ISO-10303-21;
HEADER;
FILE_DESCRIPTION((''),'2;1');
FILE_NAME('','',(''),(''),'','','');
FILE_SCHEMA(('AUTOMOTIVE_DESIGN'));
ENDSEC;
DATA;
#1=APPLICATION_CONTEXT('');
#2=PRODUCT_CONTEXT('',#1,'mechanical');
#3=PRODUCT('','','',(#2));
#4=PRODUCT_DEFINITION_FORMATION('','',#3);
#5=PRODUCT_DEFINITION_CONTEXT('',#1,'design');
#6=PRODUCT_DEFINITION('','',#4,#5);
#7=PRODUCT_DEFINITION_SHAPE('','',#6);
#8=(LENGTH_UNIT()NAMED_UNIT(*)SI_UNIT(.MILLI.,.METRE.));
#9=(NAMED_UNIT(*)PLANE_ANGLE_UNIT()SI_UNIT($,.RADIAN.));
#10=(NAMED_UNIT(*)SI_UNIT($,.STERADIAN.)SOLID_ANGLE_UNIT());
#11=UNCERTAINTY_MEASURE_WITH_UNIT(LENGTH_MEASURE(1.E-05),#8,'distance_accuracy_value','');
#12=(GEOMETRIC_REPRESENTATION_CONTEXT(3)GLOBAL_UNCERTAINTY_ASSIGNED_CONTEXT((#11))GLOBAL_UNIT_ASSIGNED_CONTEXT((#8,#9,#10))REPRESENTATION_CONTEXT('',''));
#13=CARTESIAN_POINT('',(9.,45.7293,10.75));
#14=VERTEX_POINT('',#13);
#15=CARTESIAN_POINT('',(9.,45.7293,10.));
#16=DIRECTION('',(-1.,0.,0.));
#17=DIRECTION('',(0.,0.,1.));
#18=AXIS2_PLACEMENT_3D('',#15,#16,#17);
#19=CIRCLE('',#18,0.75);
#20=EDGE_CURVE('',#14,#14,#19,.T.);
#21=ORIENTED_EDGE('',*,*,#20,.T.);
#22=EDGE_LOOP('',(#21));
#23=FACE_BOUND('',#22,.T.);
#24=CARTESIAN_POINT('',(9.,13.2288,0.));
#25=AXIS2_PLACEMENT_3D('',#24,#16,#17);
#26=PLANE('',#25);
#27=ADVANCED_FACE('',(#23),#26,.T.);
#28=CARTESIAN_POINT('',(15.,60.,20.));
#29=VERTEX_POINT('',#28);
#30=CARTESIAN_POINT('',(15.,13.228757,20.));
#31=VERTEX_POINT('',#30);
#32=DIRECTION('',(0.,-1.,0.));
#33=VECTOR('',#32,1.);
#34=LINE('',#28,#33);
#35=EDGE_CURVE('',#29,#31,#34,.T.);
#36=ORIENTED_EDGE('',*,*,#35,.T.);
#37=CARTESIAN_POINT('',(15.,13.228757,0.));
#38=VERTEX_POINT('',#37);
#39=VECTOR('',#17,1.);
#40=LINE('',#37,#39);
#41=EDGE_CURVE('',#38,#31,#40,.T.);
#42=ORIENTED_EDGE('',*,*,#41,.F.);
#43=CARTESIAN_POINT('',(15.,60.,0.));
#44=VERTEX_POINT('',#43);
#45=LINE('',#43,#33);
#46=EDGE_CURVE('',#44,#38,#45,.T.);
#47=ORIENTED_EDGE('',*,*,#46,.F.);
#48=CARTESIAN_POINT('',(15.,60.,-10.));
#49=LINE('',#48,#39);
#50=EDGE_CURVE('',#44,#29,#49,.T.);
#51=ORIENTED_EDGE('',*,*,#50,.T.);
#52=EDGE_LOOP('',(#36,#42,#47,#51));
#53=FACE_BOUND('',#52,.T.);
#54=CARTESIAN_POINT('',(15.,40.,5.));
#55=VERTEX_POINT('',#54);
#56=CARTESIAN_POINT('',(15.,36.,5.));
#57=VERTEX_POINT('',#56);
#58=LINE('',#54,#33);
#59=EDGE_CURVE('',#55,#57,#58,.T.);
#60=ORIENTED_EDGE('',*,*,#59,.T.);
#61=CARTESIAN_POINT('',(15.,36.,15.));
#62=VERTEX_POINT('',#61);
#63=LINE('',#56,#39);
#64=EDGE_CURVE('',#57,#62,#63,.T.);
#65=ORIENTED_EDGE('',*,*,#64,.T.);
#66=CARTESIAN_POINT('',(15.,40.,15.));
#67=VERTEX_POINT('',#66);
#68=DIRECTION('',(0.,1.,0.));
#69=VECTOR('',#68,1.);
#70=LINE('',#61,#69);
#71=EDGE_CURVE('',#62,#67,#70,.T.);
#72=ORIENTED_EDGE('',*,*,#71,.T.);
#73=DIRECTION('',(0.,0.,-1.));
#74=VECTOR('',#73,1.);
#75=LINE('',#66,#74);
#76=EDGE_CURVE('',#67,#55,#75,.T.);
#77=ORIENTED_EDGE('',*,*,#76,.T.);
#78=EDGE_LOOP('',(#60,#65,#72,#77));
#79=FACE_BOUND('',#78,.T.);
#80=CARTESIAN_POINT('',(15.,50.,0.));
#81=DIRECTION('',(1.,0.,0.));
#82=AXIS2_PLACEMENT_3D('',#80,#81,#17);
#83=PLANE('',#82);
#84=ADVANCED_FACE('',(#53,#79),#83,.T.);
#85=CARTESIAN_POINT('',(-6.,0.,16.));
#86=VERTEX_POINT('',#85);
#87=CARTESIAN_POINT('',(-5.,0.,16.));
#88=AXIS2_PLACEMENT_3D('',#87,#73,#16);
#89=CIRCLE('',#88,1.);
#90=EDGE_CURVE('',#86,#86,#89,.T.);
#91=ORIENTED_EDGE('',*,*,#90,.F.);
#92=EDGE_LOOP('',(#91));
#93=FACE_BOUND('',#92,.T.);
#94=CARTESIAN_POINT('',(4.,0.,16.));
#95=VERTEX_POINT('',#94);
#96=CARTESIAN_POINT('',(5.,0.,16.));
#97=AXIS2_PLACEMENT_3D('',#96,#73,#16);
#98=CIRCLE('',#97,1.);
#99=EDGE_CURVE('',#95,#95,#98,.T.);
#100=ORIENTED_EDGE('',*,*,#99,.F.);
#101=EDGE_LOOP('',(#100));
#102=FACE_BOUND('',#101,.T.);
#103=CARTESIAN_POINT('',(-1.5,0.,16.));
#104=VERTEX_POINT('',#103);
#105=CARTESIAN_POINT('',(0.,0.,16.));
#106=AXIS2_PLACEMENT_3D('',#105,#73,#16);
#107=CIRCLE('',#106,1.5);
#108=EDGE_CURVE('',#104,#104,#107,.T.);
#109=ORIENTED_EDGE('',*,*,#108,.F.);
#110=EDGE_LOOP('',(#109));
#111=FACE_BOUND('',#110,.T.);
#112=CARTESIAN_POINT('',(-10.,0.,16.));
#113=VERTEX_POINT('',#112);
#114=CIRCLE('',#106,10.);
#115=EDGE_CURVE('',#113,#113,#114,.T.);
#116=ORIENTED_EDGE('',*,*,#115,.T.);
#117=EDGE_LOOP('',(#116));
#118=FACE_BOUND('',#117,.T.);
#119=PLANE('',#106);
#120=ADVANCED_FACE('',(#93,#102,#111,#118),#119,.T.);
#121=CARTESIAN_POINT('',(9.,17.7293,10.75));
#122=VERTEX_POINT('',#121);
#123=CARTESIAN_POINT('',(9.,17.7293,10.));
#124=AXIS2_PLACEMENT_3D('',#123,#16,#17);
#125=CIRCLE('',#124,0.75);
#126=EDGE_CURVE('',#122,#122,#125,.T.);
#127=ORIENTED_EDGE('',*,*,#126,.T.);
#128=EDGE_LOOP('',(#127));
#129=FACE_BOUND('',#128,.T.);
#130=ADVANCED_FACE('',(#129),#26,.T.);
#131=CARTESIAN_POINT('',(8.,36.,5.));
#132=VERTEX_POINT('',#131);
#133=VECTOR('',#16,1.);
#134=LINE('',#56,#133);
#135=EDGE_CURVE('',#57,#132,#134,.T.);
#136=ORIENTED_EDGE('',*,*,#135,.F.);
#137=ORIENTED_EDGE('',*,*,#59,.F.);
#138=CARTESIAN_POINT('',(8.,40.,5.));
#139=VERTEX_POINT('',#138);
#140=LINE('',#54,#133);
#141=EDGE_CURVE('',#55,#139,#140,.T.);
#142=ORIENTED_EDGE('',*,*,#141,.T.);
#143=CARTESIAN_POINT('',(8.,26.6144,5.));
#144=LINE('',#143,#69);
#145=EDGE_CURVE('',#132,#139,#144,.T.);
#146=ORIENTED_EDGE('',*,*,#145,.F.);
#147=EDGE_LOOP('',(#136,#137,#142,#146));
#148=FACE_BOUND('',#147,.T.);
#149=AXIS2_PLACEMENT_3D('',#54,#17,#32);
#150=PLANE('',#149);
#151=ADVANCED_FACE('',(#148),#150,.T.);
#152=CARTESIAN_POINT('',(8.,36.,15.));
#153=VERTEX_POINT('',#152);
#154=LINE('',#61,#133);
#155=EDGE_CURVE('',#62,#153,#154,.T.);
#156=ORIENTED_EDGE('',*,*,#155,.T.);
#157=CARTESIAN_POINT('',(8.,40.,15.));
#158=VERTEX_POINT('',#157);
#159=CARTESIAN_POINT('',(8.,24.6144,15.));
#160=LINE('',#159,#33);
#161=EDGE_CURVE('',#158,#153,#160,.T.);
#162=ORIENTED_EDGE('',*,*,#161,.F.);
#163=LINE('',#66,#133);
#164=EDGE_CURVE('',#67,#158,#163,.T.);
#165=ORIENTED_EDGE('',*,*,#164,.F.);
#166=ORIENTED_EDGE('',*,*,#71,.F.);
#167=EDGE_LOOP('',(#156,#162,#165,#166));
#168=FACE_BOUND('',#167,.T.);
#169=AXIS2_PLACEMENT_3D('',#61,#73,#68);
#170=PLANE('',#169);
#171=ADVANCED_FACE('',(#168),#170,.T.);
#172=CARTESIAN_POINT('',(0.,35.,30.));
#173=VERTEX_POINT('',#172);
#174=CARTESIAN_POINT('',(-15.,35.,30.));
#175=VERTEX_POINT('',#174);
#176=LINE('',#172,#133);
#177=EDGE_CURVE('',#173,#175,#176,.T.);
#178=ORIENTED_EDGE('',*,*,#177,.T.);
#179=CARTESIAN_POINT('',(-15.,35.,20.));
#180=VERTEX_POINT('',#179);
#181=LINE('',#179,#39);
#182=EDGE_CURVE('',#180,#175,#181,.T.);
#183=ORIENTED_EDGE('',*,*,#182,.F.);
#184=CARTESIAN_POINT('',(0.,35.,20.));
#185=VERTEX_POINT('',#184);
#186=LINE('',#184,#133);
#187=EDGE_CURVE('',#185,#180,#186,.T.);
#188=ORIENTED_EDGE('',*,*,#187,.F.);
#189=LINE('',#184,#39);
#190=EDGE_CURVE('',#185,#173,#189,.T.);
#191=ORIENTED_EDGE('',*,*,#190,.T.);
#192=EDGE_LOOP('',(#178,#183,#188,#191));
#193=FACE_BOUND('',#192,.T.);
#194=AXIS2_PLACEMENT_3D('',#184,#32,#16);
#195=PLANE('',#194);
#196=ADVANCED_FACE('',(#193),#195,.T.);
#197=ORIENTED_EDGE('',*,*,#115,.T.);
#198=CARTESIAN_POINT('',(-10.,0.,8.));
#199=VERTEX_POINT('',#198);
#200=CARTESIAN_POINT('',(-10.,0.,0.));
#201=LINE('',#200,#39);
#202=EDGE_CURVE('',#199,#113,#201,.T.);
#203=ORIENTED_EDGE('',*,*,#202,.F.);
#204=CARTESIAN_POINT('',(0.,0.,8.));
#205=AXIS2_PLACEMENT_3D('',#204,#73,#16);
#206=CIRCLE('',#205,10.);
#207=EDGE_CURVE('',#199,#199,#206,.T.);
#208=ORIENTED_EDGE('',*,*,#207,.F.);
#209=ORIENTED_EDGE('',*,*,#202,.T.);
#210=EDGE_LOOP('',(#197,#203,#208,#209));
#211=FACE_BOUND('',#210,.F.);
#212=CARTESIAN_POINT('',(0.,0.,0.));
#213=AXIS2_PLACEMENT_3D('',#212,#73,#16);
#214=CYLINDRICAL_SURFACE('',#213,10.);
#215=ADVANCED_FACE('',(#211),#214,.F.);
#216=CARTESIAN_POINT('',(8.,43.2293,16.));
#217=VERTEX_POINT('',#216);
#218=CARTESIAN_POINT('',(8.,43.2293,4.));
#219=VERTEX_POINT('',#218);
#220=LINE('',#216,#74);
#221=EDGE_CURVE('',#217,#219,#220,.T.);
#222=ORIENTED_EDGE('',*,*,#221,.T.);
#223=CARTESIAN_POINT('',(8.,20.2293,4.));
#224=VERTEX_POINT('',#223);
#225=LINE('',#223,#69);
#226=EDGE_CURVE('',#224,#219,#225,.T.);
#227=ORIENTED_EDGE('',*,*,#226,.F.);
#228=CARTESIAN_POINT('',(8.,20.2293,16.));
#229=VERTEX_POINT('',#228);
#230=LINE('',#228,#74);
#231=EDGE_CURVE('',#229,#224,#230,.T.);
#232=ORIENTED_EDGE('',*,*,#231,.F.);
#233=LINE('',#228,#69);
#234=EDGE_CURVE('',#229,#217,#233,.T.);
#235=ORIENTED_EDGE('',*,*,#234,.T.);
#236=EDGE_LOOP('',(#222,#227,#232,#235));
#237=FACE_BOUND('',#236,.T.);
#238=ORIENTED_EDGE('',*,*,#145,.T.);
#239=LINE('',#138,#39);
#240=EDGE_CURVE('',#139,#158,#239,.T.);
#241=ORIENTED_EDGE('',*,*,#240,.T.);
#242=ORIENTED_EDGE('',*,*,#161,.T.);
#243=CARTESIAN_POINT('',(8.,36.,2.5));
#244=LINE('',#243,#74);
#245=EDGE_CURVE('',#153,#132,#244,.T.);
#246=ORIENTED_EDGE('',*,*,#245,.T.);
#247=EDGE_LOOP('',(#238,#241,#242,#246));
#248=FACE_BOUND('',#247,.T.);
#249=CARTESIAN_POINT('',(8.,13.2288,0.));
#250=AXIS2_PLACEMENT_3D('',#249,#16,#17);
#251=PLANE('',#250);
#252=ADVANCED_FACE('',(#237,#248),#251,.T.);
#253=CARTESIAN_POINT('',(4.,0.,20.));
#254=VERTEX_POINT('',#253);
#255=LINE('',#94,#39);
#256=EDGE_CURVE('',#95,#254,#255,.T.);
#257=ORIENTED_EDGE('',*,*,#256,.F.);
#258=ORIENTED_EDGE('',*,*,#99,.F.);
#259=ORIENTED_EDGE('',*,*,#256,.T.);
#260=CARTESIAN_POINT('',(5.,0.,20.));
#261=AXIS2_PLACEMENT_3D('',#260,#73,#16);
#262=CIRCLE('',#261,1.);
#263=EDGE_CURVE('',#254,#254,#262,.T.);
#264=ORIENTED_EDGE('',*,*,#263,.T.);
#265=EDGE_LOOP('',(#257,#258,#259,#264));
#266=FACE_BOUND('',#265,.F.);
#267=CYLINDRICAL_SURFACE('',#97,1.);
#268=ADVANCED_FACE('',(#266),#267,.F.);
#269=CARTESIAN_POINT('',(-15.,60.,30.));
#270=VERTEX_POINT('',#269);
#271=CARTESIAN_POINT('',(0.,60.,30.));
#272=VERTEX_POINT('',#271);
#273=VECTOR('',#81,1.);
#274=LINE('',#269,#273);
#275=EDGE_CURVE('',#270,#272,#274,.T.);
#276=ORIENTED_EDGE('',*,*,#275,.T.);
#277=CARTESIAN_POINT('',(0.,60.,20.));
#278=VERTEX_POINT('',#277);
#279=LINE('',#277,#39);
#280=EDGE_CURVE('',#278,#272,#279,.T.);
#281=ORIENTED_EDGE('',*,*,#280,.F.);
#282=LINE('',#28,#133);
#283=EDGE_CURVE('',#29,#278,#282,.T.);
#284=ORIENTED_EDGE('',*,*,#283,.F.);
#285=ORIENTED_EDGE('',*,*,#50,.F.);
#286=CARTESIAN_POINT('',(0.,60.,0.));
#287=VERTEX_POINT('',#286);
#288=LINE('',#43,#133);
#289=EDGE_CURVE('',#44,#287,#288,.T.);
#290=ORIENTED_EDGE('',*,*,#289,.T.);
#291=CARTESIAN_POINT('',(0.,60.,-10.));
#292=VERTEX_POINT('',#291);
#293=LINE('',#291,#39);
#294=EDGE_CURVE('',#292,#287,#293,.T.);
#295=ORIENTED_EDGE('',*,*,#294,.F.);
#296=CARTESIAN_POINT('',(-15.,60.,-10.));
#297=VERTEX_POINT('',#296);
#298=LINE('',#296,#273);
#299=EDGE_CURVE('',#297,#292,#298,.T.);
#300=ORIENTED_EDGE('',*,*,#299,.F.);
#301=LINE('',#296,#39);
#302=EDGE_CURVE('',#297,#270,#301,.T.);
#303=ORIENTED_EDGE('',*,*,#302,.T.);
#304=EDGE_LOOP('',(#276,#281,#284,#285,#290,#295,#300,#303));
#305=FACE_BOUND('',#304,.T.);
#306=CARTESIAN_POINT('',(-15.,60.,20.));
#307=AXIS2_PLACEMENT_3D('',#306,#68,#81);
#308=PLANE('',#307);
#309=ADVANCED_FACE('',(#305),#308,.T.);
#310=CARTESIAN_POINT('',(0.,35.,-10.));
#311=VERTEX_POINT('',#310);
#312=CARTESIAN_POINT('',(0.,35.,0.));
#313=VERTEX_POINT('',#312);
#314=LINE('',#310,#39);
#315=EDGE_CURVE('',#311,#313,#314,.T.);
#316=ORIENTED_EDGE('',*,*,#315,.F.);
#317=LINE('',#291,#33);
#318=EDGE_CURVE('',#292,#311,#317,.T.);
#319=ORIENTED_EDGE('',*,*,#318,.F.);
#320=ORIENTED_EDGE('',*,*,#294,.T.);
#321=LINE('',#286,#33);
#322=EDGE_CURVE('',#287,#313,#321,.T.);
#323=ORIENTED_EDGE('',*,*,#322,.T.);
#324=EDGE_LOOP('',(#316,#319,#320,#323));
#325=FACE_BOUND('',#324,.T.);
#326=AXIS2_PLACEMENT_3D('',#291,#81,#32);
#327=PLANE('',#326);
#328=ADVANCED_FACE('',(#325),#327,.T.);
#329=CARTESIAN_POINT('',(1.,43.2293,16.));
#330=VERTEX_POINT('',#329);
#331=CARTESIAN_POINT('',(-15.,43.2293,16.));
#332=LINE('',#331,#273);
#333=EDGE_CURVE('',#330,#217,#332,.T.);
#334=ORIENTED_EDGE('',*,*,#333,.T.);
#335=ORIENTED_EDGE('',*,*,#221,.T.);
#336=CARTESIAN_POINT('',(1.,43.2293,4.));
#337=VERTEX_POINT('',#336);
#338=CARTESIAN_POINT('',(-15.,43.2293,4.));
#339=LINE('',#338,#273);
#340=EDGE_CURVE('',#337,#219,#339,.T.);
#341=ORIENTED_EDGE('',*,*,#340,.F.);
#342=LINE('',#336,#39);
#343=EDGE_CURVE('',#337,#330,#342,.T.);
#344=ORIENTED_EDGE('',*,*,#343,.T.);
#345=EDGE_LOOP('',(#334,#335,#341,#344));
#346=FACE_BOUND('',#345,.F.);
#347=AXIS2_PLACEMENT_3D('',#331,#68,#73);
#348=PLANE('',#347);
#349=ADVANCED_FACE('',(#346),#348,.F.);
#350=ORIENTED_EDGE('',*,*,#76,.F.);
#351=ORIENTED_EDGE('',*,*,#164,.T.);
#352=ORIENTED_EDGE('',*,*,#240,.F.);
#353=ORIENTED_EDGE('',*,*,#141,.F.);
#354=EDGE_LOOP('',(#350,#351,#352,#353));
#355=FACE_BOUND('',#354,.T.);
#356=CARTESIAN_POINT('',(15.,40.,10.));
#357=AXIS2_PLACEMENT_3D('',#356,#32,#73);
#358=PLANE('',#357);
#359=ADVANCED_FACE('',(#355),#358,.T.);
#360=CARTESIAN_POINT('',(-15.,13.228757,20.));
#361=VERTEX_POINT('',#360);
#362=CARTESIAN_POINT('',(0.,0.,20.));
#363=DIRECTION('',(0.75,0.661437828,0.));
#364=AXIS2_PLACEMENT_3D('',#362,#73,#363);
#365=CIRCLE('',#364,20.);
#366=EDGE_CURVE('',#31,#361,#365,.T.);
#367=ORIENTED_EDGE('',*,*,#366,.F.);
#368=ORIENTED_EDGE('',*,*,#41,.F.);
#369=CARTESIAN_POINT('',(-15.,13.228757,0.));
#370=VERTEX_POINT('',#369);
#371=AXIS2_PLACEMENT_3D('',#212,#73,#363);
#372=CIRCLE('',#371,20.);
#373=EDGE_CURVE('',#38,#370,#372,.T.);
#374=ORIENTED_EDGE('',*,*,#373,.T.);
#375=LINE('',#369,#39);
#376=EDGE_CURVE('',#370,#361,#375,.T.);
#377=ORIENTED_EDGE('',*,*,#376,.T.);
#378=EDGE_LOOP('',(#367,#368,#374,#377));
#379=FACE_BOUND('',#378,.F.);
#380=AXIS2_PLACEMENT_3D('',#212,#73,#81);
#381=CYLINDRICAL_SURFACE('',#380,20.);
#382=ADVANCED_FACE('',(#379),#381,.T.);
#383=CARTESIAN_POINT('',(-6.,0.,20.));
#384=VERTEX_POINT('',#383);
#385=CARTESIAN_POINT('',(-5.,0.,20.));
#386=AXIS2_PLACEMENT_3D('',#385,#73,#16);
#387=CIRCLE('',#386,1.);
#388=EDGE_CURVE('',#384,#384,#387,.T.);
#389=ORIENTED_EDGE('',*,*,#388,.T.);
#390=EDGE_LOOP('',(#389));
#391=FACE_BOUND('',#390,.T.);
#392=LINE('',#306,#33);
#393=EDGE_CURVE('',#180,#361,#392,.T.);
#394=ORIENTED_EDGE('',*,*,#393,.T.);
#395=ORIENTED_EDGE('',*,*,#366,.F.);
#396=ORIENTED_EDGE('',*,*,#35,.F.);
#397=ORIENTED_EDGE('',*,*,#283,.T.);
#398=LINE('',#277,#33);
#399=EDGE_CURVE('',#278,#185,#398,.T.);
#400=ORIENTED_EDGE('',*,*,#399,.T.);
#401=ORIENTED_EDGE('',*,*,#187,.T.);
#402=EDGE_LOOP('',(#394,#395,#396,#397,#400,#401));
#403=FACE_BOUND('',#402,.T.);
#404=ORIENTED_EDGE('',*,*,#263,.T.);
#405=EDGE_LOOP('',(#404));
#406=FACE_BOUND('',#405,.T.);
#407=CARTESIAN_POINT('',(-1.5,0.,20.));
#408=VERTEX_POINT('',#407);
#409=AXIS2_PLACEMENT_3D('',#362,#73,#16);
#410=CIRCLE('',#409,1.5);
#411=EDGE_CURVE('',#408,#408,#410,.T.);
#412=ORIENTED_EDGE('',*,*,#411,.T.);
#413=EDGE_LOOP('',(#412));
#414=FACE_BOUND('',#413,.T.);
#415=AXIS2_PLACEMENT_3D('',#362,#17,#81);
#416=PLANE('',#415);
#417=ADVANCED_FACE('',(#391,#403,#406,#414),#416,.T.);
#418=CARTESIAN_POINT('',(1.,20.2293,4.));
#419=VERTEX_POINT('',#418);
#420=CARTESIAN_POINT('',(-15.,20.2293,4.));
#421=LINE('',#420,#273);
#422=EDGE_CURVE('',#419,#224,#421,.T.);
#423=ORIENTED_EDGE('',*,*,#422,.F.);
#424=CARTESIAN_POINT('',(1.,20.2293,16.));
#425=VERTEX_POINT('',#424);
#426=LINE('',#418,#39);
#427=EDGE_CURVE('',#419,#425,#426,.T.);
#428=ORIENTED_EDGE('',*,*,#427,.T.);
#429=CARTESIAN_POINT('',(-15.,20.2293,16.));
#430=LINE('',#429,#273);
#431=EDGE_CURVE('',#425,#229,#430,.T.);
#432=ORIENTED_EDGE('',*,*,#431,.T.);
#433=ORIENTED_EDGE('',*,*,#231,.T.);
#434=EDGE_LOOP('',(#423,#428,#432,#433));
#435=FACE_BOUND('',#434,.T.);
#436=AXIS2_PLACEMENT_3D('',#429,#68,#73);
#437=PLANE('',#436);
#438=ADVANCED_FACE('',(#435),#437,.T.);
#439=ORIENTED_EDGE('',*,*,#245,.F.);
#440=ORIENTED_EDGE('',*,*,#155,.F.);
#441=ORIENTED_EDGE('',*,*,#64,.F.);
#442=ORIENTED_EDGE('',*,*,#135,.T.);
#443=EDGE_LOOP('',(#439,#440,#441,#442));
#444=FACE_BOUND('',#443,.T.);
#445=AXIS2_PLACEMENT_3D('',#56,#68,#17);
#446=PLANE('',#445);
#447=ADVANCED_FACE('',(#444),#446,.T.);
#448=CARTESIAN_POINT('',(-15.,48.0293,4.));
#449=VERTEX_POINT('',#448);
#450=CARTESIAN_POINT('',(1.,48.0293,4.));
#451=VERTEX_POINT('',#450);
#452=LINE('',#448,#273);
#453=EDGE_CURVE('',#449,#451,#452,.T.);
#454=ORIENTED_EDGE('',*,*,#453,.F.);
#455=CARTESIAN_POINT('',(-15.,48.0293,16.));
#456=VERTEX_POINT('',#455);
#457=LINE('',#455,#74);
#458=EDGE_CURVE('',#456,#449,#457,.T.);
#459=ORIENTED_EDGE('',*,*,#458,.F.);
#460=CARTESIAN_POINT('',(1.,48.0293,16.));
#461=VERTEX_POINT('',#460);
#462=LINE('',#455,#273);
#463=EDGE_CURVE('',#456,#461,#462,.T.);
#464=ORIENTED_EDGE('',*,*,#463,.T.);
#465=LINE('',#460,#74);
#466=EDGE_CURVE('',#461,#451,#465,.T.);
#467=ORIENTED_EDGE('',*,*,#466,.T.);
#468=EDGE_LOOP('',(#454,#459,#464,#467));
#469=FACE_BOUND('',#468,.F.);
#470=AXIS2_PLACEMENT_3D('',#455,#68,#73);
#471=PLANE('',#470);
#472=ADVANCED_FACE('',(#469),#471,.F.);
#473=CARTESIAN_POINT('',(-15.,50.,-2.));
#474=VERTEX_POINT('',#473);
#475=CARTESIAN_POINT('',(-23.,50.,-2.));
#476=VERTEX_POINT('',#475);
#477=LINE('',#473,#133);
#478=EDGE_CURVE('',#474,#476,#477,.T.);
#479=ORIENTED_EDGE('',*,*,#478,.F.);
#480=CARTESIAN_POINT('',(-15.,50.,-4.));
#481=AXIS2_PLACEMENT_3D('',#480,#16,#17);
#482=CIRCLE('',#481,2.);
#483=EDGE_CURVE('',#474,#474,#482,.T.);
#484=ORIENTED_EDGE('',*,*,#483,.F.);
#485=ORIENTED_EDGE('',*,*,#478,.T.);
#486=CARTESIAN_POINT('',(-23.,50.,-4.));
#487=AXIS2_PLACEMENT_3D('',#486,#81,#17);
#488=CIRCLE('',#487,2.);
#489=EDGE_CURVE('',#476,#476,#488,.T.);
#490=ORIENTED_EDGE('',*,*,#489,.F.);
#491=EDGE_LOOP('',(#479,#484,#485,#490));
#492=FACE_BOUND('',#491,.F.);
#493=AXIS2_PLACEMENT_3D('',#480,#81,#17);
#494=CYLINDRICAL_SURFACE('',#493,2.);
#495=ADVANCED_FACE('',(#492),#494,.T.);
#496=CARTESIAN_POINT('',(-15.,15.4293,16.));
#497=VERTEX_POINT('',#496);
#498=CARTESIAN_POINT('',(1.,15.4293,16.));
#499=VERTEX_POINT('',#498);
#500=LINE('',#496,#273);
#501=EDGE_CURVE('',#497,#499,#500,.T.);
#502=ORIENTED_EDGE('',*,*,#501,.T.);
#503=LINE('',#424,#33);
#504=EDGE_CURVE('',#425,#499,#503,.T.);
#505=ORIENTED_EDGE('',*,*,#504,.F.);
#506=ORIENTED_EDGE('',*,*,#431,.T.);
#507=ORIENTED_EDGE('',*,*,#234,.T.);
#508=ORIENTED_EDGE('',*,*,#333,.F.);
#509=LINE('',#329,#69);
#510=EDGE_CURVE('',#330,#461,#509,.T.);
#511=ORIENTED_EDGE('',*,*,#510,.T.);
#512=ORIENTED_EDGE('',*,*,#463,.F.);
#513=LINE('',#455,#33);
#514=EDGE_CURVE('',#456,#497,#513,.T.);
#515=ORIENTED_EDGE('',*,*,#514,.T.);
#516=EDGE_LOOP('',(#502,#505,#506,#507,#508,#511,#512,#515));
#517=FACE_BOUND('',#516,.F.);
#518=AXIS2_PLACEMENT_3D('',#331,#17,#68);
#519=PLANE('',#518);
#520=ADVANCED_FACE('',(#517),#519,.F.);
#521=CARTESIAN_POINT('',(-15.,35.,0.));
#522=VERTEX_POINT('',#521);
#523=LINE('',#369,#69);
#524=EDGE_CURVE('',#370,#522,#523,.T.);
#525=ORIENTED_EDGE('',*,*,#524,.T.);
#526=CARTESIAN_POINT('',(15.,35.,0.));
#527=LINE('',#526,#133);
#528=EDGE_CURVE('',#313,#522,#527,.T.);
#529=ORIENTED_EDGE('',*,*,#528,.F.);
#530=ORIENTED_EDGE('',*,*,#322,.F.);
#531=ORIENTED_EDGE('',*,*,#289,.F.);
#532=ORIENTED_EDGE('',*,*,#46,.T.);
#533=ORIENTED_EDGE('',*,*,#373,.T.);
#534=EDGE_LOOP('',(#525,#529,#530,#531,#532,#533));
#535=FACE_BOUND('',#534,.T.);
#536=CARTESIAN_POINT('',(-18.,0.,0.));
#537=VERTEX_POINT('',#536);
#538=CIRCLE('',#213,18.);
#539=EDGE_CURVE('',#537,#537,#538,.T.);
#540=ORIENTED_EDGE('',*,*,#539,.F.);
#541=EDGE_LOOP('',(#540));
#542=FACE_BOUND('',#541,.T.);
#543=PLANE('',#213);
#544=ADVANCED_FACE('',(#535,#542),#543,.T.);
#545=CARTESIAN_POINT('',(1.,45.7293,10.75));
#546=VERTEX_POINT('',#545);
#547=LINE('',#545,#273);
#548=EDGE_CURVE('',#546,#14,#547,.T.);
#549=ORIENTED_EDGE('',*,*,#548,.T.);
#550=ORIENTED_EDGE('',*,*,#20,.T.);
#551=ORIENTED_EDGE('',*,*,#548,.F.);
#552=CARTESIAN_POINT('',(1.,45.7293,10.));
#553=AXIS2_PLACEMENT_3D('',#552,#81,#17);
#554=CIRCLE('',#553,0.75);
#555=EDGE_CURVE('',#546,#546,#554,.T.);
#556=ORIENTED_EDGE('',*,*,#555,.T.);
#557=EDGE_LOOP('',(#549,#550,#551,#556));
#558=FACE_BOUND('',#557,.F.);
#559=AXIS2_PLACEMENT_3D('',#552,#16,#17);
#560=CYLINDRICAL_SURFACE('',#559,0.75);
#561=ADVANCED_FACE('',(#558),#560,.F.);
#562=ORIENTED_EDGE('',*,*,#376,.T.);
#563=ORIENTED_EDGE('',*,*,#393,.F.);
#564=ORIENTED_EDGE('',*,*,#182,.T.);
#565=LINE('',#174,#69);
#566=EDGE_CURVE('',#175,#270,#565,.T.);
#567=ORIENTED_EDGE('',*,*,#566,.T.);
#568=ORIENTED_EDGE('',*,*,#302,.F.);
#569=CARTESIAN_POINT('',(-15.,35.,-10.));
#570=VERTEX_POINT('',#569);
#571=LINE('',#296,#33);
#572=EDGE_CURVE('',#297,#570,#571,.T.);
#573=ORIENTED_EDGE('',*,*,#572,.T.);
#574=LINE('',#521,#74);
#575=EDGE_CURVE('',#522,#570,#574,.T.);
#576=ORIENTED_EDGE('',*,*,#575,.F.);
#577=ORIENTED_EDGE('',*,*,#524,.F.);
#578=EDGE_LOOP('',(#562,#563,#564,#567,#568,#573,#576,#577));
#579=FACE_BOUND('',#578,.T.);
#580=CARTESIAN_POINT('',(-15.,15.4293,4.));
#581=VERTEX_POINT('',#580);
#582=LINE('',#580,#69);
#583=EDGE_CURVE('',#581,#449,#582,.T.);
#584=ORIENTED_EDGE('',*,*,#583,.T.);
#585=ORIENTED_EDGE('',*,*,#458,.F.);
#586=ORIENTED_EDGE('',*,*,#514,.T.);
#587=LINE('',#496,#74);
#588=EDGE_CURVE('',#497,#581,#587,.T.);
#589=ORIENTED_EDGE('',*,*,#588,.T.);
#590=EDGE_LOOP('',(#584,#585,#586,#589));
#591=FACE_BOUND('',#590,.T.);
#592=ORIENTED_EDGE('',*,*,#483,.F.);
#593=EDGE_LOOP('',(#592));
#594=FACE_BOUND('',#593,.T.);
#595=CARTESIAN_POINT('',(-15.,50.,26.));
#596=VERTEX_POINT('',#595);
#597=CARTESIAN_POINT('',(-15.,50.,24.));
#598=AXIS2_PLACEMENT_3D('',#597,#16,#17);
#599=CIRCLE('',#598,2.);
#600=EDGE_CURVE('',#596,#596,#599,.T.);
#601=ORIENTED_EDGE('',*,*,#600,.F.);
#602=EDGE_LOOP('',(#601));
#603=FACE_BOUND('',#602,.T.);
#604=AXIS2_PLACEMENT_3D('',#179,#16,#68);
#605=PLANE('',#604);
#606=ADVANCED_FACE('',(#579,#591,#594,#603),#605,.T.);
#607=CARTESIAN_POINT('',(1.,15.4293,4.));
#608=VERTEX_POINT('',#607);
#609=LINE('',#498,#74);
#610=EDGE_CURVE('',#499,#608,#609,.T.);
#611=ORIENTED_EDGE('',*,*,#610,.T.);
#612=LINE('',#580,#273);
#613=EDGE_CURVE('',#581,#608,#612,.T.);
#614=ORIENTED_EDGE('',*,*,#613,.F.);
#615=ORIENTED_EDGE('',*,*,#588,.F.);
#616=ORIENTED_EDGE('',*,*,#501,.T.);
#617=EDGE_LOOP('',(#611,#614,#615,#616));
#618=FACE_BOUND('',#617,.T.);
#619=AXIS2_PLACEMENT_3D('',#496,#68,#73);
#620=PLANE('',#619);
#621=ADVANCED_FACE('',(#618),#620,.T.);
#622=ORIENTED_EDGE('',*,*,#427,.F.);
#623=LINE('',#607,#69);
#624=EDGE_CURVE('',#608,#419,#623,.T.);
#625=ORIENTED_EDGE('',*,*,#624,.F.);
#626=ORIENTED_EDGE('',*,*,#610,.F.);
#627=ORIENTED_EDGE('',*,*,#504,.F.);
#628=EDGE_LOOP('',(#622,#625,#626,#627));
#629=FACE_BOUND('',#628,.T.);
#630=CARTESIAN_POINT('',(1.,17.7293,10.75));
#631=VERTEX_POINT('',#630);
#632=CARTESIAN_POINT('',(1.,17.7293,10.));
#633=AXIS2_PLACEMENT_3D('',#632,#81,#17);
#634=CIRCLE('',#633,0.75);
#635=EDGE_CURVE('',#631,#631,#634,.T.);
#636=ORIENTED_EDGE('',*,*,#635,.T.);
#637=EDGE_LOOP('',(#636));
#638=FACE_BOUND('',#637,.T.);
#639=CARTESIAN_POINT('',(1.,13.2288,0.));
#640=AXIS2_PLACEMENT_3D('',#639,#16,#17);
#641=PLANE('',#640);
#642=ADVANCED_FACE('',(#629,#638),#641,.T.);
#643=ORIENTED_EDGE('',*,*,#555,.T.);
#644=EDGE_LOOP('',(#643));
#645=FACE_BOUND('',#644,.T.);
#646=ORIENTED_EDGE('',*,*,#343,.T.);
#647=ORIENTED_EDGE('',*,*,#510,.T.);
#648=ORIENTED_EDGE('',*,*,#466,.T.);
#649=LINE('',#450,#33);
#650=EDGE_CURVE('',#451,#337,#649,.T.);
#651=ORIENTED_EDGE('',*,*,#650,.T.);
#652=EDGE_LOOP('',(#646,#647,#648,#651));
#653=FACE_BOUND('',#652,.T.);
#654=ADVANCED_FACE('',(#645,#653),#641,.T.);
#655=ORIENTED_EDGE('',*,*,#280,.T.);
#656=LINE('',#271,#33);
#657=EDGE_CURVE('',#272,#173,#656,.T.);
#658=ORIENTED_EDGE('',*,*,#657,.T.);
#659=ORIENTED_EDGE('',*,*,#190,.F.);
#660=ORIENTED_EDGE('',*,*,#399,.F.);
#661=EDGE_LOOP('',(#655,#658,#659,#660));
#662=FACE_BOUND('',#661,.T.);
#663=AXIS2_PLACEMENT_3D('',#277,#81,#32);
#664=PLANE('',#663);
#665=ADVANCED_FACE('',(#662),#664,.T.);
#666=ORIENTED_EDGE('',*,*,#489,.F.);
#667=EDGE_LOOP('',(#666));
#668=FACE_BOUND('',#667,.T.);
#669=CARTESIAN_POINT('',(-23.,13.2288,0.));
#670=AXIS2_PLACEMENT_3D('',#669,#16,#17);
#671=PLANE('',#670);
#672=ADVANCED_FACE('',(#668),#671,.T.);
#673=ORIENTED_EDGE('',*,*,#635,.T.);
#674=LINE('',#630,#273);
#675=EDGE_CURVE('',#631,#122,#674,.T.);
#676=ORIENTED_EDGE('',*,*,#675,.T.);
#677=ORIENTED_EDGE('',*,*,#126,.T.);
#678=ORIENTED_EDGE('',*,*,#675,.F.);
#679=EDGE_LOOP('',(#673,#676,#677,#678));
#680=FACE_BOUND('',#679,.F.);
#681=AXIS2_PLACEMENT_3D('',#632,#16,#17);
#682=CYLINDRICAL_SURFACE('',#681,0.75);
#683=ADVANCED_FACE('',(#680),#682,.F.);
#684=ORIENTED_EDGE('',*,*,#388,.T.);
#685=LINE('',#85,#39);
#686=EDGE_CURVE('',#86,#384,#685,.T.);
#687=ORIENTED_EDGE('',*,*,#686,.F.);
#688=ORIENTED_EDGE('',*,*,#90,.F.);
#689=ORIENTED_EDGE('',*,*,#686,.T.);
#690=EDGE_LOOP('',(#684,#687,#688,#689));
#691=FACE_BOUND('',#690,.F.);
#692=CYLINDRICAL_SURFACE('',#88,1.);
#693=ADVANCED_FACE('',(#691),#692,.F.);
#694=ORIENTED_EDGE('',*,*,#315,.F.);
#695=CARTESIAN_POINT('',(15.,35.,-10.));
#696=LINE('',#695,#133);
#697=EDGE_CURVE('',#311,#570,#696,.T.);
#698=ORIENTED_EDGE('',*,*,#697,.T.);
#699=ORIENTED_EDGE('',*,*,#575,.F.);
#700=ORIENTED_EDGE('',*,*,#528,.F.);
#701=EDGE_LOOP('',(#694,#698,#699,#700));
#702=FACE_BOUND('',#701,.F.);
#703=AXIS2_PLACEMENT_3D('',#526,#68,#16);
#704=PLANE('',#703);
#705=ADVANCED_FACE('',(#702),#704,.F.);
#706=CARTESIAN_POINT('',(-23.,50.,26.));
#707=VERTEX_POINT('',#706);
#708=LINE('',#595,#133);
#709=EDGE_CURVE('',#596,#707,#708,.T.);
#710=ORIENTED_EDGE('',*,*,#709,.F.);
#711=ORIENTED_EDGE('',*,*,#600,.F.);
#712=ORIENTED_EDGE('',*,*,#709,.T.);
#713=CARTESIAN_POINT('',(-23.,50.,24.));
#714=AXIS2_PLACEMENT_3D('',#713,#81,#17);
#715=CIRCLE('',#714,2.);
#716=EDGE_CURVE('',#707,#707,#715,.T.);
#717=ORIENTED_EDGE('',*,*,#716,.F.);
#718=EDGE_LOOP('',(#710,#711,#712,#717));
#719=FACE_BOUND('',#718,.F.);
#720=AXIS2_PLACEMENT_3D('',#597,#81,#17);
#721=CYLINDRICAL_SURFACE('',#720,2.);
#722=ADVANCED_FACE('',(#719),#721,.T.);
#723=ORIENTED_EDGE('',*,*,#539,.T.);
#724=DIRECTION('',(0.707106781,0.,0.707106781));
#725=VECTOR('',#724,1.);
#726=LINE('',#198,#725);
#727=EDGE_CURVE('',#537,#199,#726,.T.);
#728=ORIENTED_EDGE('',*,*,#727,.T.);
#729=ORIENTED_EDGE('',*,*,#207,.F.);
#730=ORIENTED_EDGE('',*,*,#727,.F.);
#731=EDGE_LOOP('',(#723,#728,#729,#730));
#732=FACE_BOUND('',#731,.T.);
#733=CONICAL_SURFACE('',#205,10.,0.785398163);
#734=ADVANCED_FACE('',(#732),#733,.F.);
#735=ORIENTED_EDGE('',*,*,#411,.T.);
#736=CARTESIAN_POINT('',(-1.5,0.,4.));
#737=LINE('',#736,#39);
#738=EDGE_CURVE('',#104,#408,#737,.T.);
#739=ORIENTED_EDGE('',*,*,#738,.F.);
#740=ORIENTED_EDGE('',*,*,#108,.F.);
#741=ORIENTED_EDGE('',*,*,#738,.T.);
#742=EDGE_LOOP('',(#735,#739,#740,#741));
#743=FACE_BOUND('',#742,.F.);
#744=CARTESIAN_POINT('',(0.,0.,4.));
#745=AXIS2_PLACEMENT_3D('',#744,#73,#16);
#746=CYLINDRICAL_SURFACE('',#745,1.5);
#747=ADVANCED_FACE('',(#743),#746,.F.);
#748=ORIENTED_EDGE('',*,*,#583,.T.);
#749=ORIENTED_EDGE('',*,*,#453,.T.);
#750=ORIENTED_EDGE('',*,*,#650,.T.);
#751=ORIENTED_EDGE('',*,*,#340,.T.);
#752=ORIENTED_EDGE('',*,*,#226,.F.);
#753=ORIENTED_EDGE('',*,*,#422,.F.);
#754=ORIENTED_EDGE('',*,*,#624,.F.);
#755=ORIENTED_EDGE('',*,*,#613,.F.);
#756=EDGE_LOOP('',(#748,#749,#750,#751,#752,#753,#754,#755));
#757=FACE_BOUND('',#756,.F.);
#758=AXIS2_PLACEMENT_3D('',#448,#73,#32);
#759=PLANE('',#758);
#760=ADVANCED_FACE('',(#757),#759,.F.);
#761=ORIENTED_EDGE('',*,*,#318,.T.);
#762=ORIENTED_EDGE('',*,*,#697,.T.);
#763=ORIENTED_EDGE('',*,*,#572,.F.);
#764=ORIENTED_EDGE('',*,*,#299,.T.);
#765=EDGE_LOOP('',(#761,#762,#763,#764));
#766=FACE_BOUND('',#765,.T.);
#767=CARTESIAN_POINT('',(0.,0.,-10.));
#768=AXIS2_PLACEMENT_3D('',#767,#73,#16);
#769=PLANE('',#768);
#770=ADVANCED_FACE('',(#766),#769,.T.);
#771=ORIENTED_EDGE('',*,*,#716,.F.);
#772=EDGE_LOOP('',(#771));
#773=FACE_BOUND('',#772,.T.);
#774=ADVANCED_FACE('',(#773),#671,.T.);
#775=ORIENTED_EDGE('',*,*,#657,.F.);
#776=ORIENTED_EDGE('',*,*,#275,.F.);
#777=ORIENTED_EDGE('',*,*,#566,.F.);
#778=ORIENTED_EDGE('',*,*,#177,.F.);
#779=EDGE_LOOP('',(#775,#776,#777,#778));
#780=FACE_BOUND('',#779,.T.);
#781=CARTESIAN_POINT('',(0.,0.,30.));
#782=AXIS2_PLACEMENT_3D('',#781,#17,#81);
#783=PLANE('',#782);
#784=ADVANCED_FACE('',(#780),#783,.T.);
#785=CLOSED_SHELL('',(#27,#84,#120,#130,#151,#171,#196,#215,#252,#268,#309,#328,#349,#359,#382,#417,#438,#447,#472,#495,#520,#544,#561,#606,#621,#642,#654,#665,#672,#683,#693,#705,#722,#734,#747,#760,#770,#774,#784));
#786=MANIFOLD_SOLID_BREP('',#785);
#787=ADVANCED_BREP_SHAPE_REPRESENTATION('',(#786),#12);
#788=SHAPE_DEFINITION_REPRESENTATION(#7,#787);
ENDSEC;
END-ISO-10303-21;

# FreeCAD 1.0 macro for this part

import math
import FreeCAD as App
import Part
import Sketcher
from FreeCAD import Vector


def edges_at(feature, points):
    """Names of the edges that pass closest to the given points."""
    edges = feature.Shape.Edges
    near = lambda p: min(range(len(edges)), key=lambda i: edges[i].distToShape(Part.Vertex(*p))[0])
    return sorted({f"Edge{near(p) + 1}" for p in points})

doc = App.newDocument("Part")
body = doc.addObject("PartDesign::Body", "Body")

# Sketch on XY plane
sketch1 = body.newObject("Sketcher::SketchObject", "Sketch")
sketch1.AttachmentSupport = (doc.getObject("XY_Plane"), [""])
sketch1.MapMode = "FlatFace"
sketch1.addGeometry([
    Part.ArcOfCircle(Part.Circle(Vector(0, 0, 0), Vector(0, 0, 1), 20), math.radians(138.590378), math.radians(401.409622)),
    Part.LineSegment(Vector(15, 13.228757, 0), Vector(15, 50, 0)),
    Part.LineSegment(Vector(15, 50, 0), Vector(-15, 50, 0)),
    Part.LineSegment(Vector(-15, 50, 0), Vector(-15, 13.228757, 0)),
], False)
sketch1.addConstraint([
    Sketcher.Constraint("Coincident", 0, 2, 1, 1),
    Sketcher.Constraint("Coincident", 1, 2, 2, 1),
    Sketcher.Constraint("Coincident", 2, 2, 3, 1),
    Sketcher.Constraint("Coincident", 3, 2, 0, 1),
    Sketcher.Constraint("Vertical", 1),
    Sketcher.Constraint("Horizontal", 2),
    Sketcher.Constraint("Vertical", 3),
    Sketcher.Constraint("Coincident", 0, 3, -1, 1),
    Sketcher.Constraint("Horizontal", 0, 2, 3, 2),
    Sketcher.Constraint("Radius", 0, 20.0),
    Sketcher.Constraint("DistanceX", 2, 2, 2, 1, 30.0),
    Sketcher.Constraint("DistanceY", -1, 1, 1, 2, 50.0),
])
pad1 = body.newObject("PartDesign::Pad", "Pad")
pad1.Profile = sketch1
pad1.Length = 20

# Sketch on XY plane
sketch2 = body.newObject("Sketcher::SketchObject", "Sketch001")
sketch2.AttachmentSupport = (doc.getObject("XY_Plane"), [""])
sketch2.MapMode = "FlatFace"
sketch2.AttachmentOffset = App.Placement(Vector(0, 0, 20), App.Rotation())
sketch2.addGeometry(Part.Circle(Vector(0, 0, 0), Vector(0, 0, 1), 10), False)
sketch2.addConstraint([
    Sketcher.Constraint("Coincident", 0, 3, -1, 1),
    Sketcher.Constraint("Diameter", 0, 20.0),
])
pocket1 = body.newObject("PartDesign::Pocket", "Pocket")
pocket1.Profile = sketch2
pocket1.Length = 15

# Sketch on YZ plane
sketch3 = body.newObject("Sketcher::SketchObject", "Sketch002")
sketch3.AttachmentSupport = (doc.getObject("YZ_Plane"), [""])
sketch3.MapMode = "FlatFace"
sketch3.AttachmentOffset = App.Placement(Vector(0, 0, -15), App.Rotation())
sketch3.addGeometry([
    Part.LineSegment(Vector(43.2293, 16, 0), Vector(43.2293, 4, 0)),
    Part.LineSegment(Vector(43.2293, 4, 0), Vector(20.2293, 4, 0)),
    Part.LineSegment(Vector(20.2293, 4, 0), Vector(20.2293, 16, 0)),
    Part.LineSegment(Vector(20.2293, 16, 0), Vector(43.2293, 16, 0)),
], False)
sketch3.addConstraint([
    Sketcher.Constraint("Coincident", 0, 2, 1, 1),
    Sketcher.Constraint("Coincident", 1, 2, 2, 1),
    Sketcher.Constraint("Coincident", 2, 2, 3, 1),
    Sketcher.Constraint("Coincident", 3, 2, 0, 1),
    Sketcher.Constraint("Vertical", 0),
    Sketcher.Constraint("Horizontal", 1),
    Sketcher.Constraint("Vertical", 2),
    Sketcher.Constraint("Horizontal", 3),
    Sketcher.Constraint("DistanceX", 1, 2, 1, 1, 23.0),
    Sketcher.Constraint("DistanceY", 0, 2, 0, 1, 12.0),
    Sketcher.Constraint("DistanceY", -1, 1, 0, 2, 4.0),
    Sketcher.Constraint("DistanceX", -1, 1, 0, 2, 43.2293),
])
pocket2 = body.newObject("PartDesign::Pocket", "Pocket001")
pocket2.Profile = sketch3
pocket2.Length = 23
pocket2.Reversed = True

# Sketch on YZ plane
sketch4 = body.newObject("Sketcher::SketchObject", "Sketch003")
sketch4.AttachmentSupport = (doc.getObject("YZ_Plane"), [""])
sketch4.MapMode = "FlatFace"
sketch4.AttachmentOffset = App.Placement(Vector(0, 0, -15), App.Rotation())
sketch4.addGeometry([
    Part.LineSegment(Vector(48.0293, 4, 0), Vector(43.2293, 4, 0)),  # 0
    Part.LineSegment(Vector(43.2293, 4, 0), Vector(43.2293, 16, 0)),  # 1
    Part.LineSegment(Vector(43.2293, 16, 0), Vector(48.0293, 16, 0)),  # 2
    Part.LineSegment(Vector(48.0293, 16, 0), Vector(48.0293, 4, 0)),  # 3
    Part.LineSegment(Vector(20.2293, 16, 0), Vector(20.2293, 4, 0)),  # 4
    Part.LineSegment(Vector(20.2293, 4, 0), Vector(15.4293, 4, 0)),  # 5
    Part.LineSegment(Vector(15.4293, 4, 0), Vector(15.4293, 16, 0)),  # 6
    Part.LineSegment(Vector(15.4293, 16, 0), Vector(20.2293, 16, 0)),  # 7
], False)
sketch4.addConstraint([
    Sketcher.Constraint("Coincident", 0, 2, 1, 1),
    Sketcher.Constraint("Coincident", 1, 2, 2, 1),
    Sketcher.Constraint("Coincident", 2, 2, 3, 1),
    Sketcher.Constraint("Coincident", 3, 2, 0, 1),
    Sketcher.Constraint("Coincident", 4, 2, 5, 1),
    Sketcher.Constraint("Coincident", 5, 2, 6, 1),
    Sketcher.Constraint("Coincident", 6, 2, 7, 1),
    Sketcher.Constraint("Coincident", 7, 2, 4, 1),
    Sketcher.Constraint("Horizontal", 0),
    Sketcher.Constraint("Vertical", 1),
    Sketcher.Constraint("Horizontal", 2),
    Sketcher.Constraint("Vertical", 3),
    Sketcher.Constraint("Vertical", 4),
    Sketcher.Constraint("Horizontal", 5),
    Sketcher.Constraint("Vertical", 6),
    Sketcher.Constraint("Horizontal", 7),
    Sketcher.Constraint("Horizontal", 3, 2, 4, 2),
    Sketcher.Constraint("Horizontal", 2, 2, 6, 2),
    Sketcher.Constraint("Equal", 2, 5),
    Sketcher.Constraint("DistanceY", 1, 1, 1, 2, 12.0),
    Sketcher.Constraint("DistanceX", 0, 2, 0, 1, 4.8),
    Sketcher.Constraint("DistanceY", -1, 1, 0, 2, 4.0),
    Sketcher.Constraint("DistanceX", 4, 2, 0, 2, 23.0),
    Sketcher.Constraint("DistanceX", -1, 1, 0, 2, 43.2293),
])
pocket3 = body.newObject("PartDesign::Pocket", "Pocket002")
pocket3.Profile = sketch4
pocket3.Length = 16
pocket3.Reversed = True

# Sketch on YZ plane
sketch5 = body.newObject("Sketcher::SketchObject", "Sketch004")
sketch5.AttachmentSupport = (doc.getObject("YZ_Plane"), [""])
sketch5.MapMode = "FlatFace"
sketch5.AttachmentOffset = App.Placement(Vector(0, 0, 1), App.Rotation())
sketch5.addGeometry([
    Part.Circle(Vector(45.7293, 10, 0), Vector(0, 0, 1), 0.75),
    Part.Circle(Vector(17.7293, 10, 0), Vector(0, 0, 1), 0.75),
], False)
sketch5.addConstraint([
    Sketcher.Constraint("Equal", 0, 1),
    Sketcher.Constraint("Horizontal", 0, 3, 1, 3),
    Sketcher.Constraint("Diameter", 0, 1.5),
    Sketcher.Constraint("DistanceY", -1, 1, 0, 3, 10.0),
    Sketcher.Constraint("DistanceX", 1, 3, 0, 3, 28.0),
    Sketcher.Constraint("DistanceX", -1, 1, 0, 3, 45.7293),
])
pocket4 = body.newObject("PartDesign::Pocket", "Pocket003")
pocket4.Profile = sketch5
pocket4.Length = 8
pocket4.Reversed = True

# Sketch on YZ plane
sketch6 = body.newObject("Sketcher::SketchObject", "Sketch005")
sketch6.AttachmentSupport = (doc.getObject("YZ_Plane"), [""])
sketch6.MapMode = "FlatFace"
sketch6.AttachmentOffset = App.Placement(Vector(0, 0, 15), App.Rotation())
sketch6.addGeometry([
    Part.LineSegment(Vector(36, 5, 0), Vector(40, 5, 0)),
    Part.LineSegment(Vector(40, 5, 0), Vector(40, 15, 0)),
    Part.LineSegment(Vector(40, 15, 0), Vector(36, 15, 0)),
    Part.LineSegment(Vector(36, 15, 0), Vector(36, 5, 0)),
], False)
sketch6.addConstraint([
    Sketcher.Constraint("Coincident", 0, 2, 1, 1),
    Sketcher.Constraint("Coincident", 1, 2, 2, 1),
    Sketcher.Constraint("Coincident", 2, 2, 3, 1),
    Sketcher.Constraint("Coincident", 3, 2, 0, 1),
    Sketcher.Constraint("Horizontal", 0),
    Sketcher.Constraint("Vertical", 1),
    Sketcher.Constraint("Horizontal", 2),
    Sketcher.Constraint("Vertical", 3),
    Sketcher.Constraint("DistanceY", 1, 1, 1, 2, 10.0),
    Sketcher.Constraint("DistanceY", -1, 1, 0, 2, 5.0),
    Sketcher.Constraint("DistanceX", 0, 1, 0, 2, 4.0),
    Sketcher.Constraint("DistanceX", -1, 1, 0, 2, 40.0),
])
pocket5 = body.newObject("PartDesign::Pocket", "Pocket004")
pocket5.Profile = sketch6
pocket5.Length = 15.8125

# Sketch on XY plane
sketch7 = body.newObject("Sketcher::SketchObject", "Sketch006")
sketch7.AttachmentSupport = (doc.getObject("XY_Plane"), [""])
sketch7.MapMode = "FlatFace"
sketch7.AttachmentOffset = App.Placement(Vector(0, 0, 5), App.Rotation())
sketch7.addGeometry([
    Part.Circle(Vector(0, 0, 0), Vector(0, 0, 1), 1.5),
    Part.Circle(Vector(7, 0, 0), Vector(0, 0, 1), 1.5),
    Part.Circle(Vector(-7, 0, 0), Vector(0, 0, 1), 1.5),
], False)
sketch7.addConstraint([
    Sketcher.Constraint("Coincident", 0, 3, -1, 1),
    Sketcher.Constraint("Equal", 0, 1),
    Sketcher.Constraint("Equal", 1, 2),
    Sketcher.Constraint("Symmetric", 1, 3, 2, 3, -1, 1),
    Sketcher.Constraint("PointOnObject", 1, 3, -1),
    Sketcher.Constraint("Diameter", 0, 3.0),
    Sketcher.Constraint("DistanceX", -1, 1, 1, 3, 7.0),
])
pocket6 = body.newObject("PartDesign::Pocket", "Pocket005")
pocket6.Profile = sketch7
pocket6.Length = 8

# Sketch on XZ plane
sketch8 = body.newObject("Sketcher::SketchObject", "Sketch007")
sketch8.AttachmentSupport = (doc.getObject("XZ_Plane"), [""])
sketch8.MapMode = "FlatFace"
sketch8.AttachmentOffset = App.Placement(Vector(0, 0, -50), App.Rotation())
sketch8.addGeometry([
    Part.LineSegment(Vector(14.4792, 0, 0), Vector(-15, 0, 0)),
    Part.LineSegment(Vector(-15, 0, 0), Vector(-15, 20, 0)),
    Part.LineSegment(Vector(-15, 20, 0), Vector(14.4792, 20, 0)),
    Part.LineSegment(Vector(14.4792, 20, 0), Vector(14.4792, 0, 0)),
], False)
sketch8.addConstraint([
    Sketcher.Constraint("Coincident", 0, 2, 1, 1),
    Sketcher.Constraint("Coincident", 1, 2, 2, 1),
    Sketcher.Constraint("Coincident", 2, 2, 3, 1),
    Sketcher.Constraint("Coincident", 3, 2, 0, 1),
    Sketcher.Constraint("Horizontal", 0),
    Sketcher.Constraint("Vertical", 1),
    Sketcher.Constraint("Horizontal", 2),
    Sketcher.Constraint("Vertical", 3),
    Sketcher.Constraint("PointOnObject", 0, 2, -1),
    Sketcher.Constraint("DistanceY", 1, 1, 1, 2, 20.0),
    Sketcher.Constraint("DistanceX", 0, 2, -1, 1, 15.0),
    Sketcher.Constraint("DistanceX", 0, 2, 0, 1, 29.4792),
])
pad2 = body.newObject("PartDesign::Pad", "Pad001")
pad2.Profile = sketch8
pad2.Length = 10
pad2.Reversed = True

# Sketch on YZ plane
sketch9 = body.newObject("Sketcher::SketchObject", "Sketch008")
sketch9.AttachmentSupport = (doc.getObject("YZ_Plane"), [""])
sketch9.MapMode = "FlatFace"
sketch9.AttachmentOffset = App.Placement(Vector(0, 0, 14.4792), App.Rotation())
sketch9.addGeometry([
    Part.LineSegment(Vector(50, 20, 0), Vector(50, 0, 0)),
    Part.LineSegment(Vector(50, 0, 0), Vector(60, 0, 0)),
    Part.LineSegment(Vector(60, 0, 0), Vector(60, 20, 0)),
    Part.LineSegment(Vector(60, 20, 0), Vector(50, 20, 0)),
], False)
sketch9.addConstraint([
    Sketcher.Constraint("Coincident", 0, 2, 1, 1),
    Sketcher.Constraint("Coincident", 1, 2, 2, 1),
    Sketcher.Constraint("Coincident", 2, 2, 3, 1),
    Sketcher.Constraint("Coincident", 3, 2, 0, 1),
    Sketcher.Constraint("Vertical", 0),
    Sketcher.Constraint("Horizontal", 1),
    Sketcher.Constraint("Vertical", 2),
    Sketcher.Constraint("Horizontal", 3),
    Sketcher.Constraint("PointOnObject", 0, 2, -1),
    Sketcher.Constraint("DistanceX", 1, 1, 1, 2, 10.0),
    Sketcher.Constraint("DistanceY", 0, 2, 0, 1, 20.0),
    Sketcher.Constraint("DistanceX", -1, 1, 0, 2, 50.0),
])
pocket7 = body.newObject("PartDesign::Pocket", "Pocket006")
pocket7.Profile = sketch9
pocket7.Length = 59.6125

# Sketch on XZ plane
sketch10 = body.newObject("Sketcher::SketchObject", "Sketch009")
sketch10.AttachmentSupport = (doc.getObject("XZ_Plane"), [""])
sketch10.MapMode = "FlatFace"
sketch10.AttachmentOffset = App.Placement(Vector(0, 0, -50), App.Rotation())
sketch10.addGeometry([
    Part.LineSegment(Vector(15, 20, 0), Vector(15, 0, 0)),
    Part.LineSegment(Vector(15, 0, 0), Vector(-15, 0, 0)),
    Part.LineSegment(Vector(-15, 0, 0), Vector(-15, 20, 0)),
    Part.LineSegment(Vector(-15, 20, 0), Vector(15, 20, 0)),
], False)
sketch10.addConstraint([
    Sketcher.Constraint("Coincident", 0, 2, 1, 1),
    Sketcher.Constraint("Coincident", 1, 2, 2, 1),
    Sketcher.Constraint("Coincident", 2, 2, 3, 1),
    Sketcher.Constraint("Coincident", 3, 2, 0, 1),
    Sketcher.Constraint("Vertical", 0),
    Sketcher.Constraint("Horizontal", 1),
    Sketcher.Constraint("Vertical", 2),
    Sketcher.Constraint("Horizontal", 3),
    Sketcher.Constraint("Symmetric", 0, 2, 1, 2, -1, 1),
    Sketcher.Constraint("DistanceX", 1, 2, 1, 1, 30.0),
    Sketcher.Constraint("DistanceY", 0, 2, 0, 1, 20.0),
])
pad3 = body.newObject("PartDesign::Pad", "Pad002")
pad3.Profile = sketch10
pad3.Length = 10
pad3.Reversed = True

# Sketch on XY plane
sketch11 = body.newObject("Sketcher::SketchObject", "Sketch010")
sketch11.AttachmentSupport = (doc.getObject("XY_Plane"), [""])
sketch11.MapMode = "FlatFace"
sketch11.addGeometry([
    Part.LineSegment(Vector(15, 35, 0), Vector(-15, 35, 0)),
    Part.LineSegment(Vector(-15, 35, 0), Vector(-15, 60, 0)),
    Part.LineSegment(Vector(-15, 60, 0), Vector(15, 60, 0)),
    Part.LineSegment(Vector(15, 60, 0), Vector(15, 35, 0)),
], False)
sketch11.addConstraint([
    Sketcher.Constraint("Coincident", 0, 2, 1, 1),
    Sketcher.Constraint("Coincident", 1, 2, 2, 1),
    Sketcher.Constraint("Coincident", 2, 2, 3, 1),
    Sketcher.Constraint("Coincident", 3, 2, 0, 1),
    Sketcher.Constraint("Horizontal", 0),
    Sketcher.Constraint("Vertical", 1),
    Sketcher.Constraint("Horizontal", 2),
    Sketcher.Constraint("Vertical", 3),
    Sketcher.Constraint("DistanceX", 0, 2, -1, 1, 15.0),
    Sketcher.Constraint("DistanceX", -1, 1, 2, 2, 15.0),
    Sketcher.Constraint("DistanceY", 1, 1, 1, 2, 25.0),
    Sketcher.Constraint("DistanceY", -1, 1, 0, 2, 35.0),
])
pad4 = body.newObject("PartDesign::Pad", "Pad003")
pad4.Profile = sketch11
pad4.Length = 10
pad4.Reversed = True

# Sketch on XY plane
sketch12 = body.newObject("Sketcher::SketchObject", "Sketch011")
sketch12.AttachmentSupport = (doc.getObject("XY_Plane"), [""])
sketch12.MapMode = "FlatFace"
sketch12.AttachmentOffset = App.Placement(Vector(0, 0, 20), App.Rotation())
sketch12.addGeometry([
    Part.LineSegment(Vector(0, 60, 0), Vector(-15, 60, 0)),
    Part.LineSegment(Vector(-15, 60, 0), Vector(-15, 35, 0)),
    Part.LineSegment(Vector(-15, 35, 0), Vector(0, 35, 0)),
    Part.LineSegment(Vector(0, 35, 0), Vector(0, 60, 0)),
], False)
sketch12.addConstraint([
    Sketcher.Constraint("Coincident", 0, 2, 1, 1),
    Sketcher.Constraint("Coincident", 1, 2, 2, 1),
    Sketcher.Constraint("Coincident", 2, 2, 3, 1),
    Sketcher.Constraint("Coincident", 3, 2, 0, 1),
    Sketcher.Constraint("Horizontal", 0),
    Sketcher.Constraint("Vertical", 1),
    Sketcher.Constraint("Horizontal", 2),
    Sketcher.Constraint("Vertical", 3),
    Sketcher.Constraint("PointOnObject", 2, 2, -2),
    Sketcher.Constraint("DistanceY", 1, 2, 1, 1, 25.0),
    Sketcher.Constraint("DistanceX", 0, 2, 0, 1, 15.0),
    Sketcher.Constraint("DistanceY", -1, 1, 0, 2, 60.0),
])
pad5 = body.newObject("PartDesign::Pad", "Pad004")
pad5.Profile = sketch12
pad5.Length = 10

# Sketch on XY plane
sketch13 = body.newObject("Sketcher::SketchObject", "Sketch012")
sketch13.AttachmentSupport = (doc.getObject("XY_Plane"), [""])
sketch13.MapMode = "FlatFace"
sketch13.AttachmentOffset = App.Placement(Vector(0, 0, -10), App.Rotation())
sketch13.addGeometry([
    Part.LineSegment(Vector(15, 60, 0), Vector(15, 35, 0)),
    Part.LineSegment(Vector(15, 35, 0), Vector(0, 35, 0)),
    Part.LineSegment(Vector(0, 35, 0), Vector(0, 60, 0)),
    Part.LineSegment(Vector(0, 60, 0), Vector(15, 60, 0)),
], False)
sketch13.addConstraint([
    Sketcher.Constraint("Coincident", 0, 2, 1, 1),
    Sketcher.Constraint("Coincident", 1, 2, 2, 1),
    Sketcher.Constraint("Coincident", 2, 2, 3, 1),
    Sketcher.Constraint("Coincident", 3, 2, 0, 1),
    Sketcher.Constraint("Vertical", 0),
    Sketcher.Constraint("Horizontal", 1),
    Sketcher.Constraint("Vertical", 2),
    Sketcher.Constraint("Horizontal", 3),
    Sketcher.Constraint("PointOnObject", 1, 2, -2),
    Sketcher.Constraint("DistanceX", 1, 2, 1, 1, 15.0),
    Sketcher.Constraint("DistanceY", 0, 2, 0, 1, 25.0),
    Sketcher.Constraint("DistanceY", -1, 1, 0, 2, 35.0),
])
pocket8 = body.newObject("PartDesign::Pocket", "Pocket007")
pocket8.Profile = sketch13
pocket8.Length = 10
pocket8.Reversed = True

# Sketch on YZ plane
sketch14 = body.newObject("Sketcher::SketchObject", "Sketch013")
sketch14.AttachmentSupport = (doc.getObject("YZ_Plane"), [""])
sketch14.MapMode = "FlatFace"
sketch14.AttachmentOffset = App.Placement(Vector(0, 0, -15), App.Rotation())
sketch14.addGeometry([
    Part.Circle(Vector(50, -4, 0), Vector(0, 0, 1), 2),
    Part.Circle(Vector(50, 24, 0), Vector(0, 0, 1), 2),
], False)
sketch14.addConstraint([
    Sketcher.Constraint("Equal", 0, 1),
    Sketcher.Constraint("Vertical", 0, 3, 1, 3),
    Sketcher.Constraint("Diameter", 0, 4.0),
    Sketcher.Constraint("DistanceY", 0, 3, -1, 1, 4.0),
    Sketcher.Constraint("DistanceX", -1, 1, 0, 3, 50.0),
    Sketcher.Constraint("DistanceY", -1, 1, 1, 3, 24.0),
])
pad6 = body.newObject("PartDesign::Pad", "Pad005")
pad6.Profile = sketch14
pad6.Length = 8
pad6.Reversed = True

# Sketch on XY plane
sketch15 = body.newObject("Sketcher::SketchObject", "Sketch014")
sketch15.AttachmentSupport = (doc.getObject("XY_Plane"), [""])
sketch15.MapMode = "FlatFace"
sketch15.AttachmentOffset = App.Placement(Vector(0, 0, 20), App.Rotation())
sketch15.addGeometry(Part.Circle(Vector(0, 0, 0), Vector(0, 0, 1), 10), False)
sketch15.addConstraint([
    Sketcher.Constraint("Coincident", 0, 3, -1, 1),
    Sketcher.Constraint("Diameter", 0, 20.0),
])
pad7 = body.newObject("PartDesign::Pad", "Pad006")
pad7.Profile = sketch15
pad7.Length = 16
pad7.Reversed = True

# Sketch on XY plane
sketch16 = body.newObject("Sketcher::SketchObject", "Sketch015")
sketch16.AttachmentSupport = (doc.getObject("XY_Plane"), [""])
sketch16.MapMode = "FlatFace"
sketch16.addGeometry([
    Part.Circle(Vector(0, 0, 0), Vector(0, 0, 1), 10),
    Part.Circle(Vector(0, 0, 0), Vector(0, 0, 1), 1.5),
], False)
sketch16.addConstraint([
    Sketcher.Constraint("Coincident", 0, 3, -1, 1),
    Sketcher.Constraint("Coincident", 1, 3, -1, 1),
    Sketcher.Constraint("Diameter", 0, 20.0),
    Sketcher.Constraint("Diameter", 1, 3.0),
])
pocket9 = body.newObject("PartDesign::Pocket", "Pocket008")
pocket9.Profile = sketch16
pocket9.Length = 16
pocket9.Reversed = True

# Sketch on XY plane
sketch17 = body.newObject("Sketcher::SketchObject", "Sketch016")
sketch17.AttachmentSupport = (doc.getObject("XY_Plane"), [""])
sketch17.MapMode = "FlatFace"
sketch17.AttachmentOffset = App.Placement(Vector(0, 0, 4), App.Rotation())
sketch17.addGeometry(Part.Circle(Vector(0, 0, 0), Vector(0, 0, 1), 1.5), False)
sketch17.addConstraint([
    Sketcher.Constraint("Coincident", 0, 3, -1, 1),
    Sketcher.Constraint("Diameter", 0, 3.0),
])
pocket10 = body.newObject("PartDesign::Pocket", "Pocket009")
pocket10.Profile = sketch17
pocket10.Length = 30.0375
pocket10.Reversed = True

# Sketch on XY plane
sketch18 = body.newObject("Sketcher::SketchObject", "Sketch017")
sketch18.AttachmentSupport = (doc.getObject("XY_Plane"), [""])
sketch18.MapMode = "FlatFace"
sketch18.AttachmentOffset = App.Placement(Vector(0, 0, 16), App.Rotation())
sketch18.addGeometry([
    Part.Circle(Vector(-5, 0, 0), Vector(0, 0, 1), 1),
    Part.Circle(Vector(5, 0, 0), Vector(0, 0, 1), 1),
], False)
sketch18.addConstraint([
    Sketcher.Constraint("Equal", 0, 1),
    Sketcher.Constraint("Symmetric", 0, 3, 1, 3, -1, 1),
    Sketcher.Constraint("PointOnObject", 0, 3, -1),
    Sketcher.Constraint("Diameter", 0, 2.0),
    Sketcher.Constraint("DistanceX", 0, 3, -1, 1, 5.0),
])
pocket11 = body.newObject("PartDesign::Pocket", "Pocket010")
pocket11.Profile = sketch18
pocket11.Length = 138.2375
pocket11.Reversed = True
doc.recompute()

chamfer = body.newObject("PartDesign::Chamfer", "Chamfer")
chamfer.Base = (pocket11, edges_at(pocket11, [(10, 0, 0)]))
chamfer.Size = 8

doc.recompute()
